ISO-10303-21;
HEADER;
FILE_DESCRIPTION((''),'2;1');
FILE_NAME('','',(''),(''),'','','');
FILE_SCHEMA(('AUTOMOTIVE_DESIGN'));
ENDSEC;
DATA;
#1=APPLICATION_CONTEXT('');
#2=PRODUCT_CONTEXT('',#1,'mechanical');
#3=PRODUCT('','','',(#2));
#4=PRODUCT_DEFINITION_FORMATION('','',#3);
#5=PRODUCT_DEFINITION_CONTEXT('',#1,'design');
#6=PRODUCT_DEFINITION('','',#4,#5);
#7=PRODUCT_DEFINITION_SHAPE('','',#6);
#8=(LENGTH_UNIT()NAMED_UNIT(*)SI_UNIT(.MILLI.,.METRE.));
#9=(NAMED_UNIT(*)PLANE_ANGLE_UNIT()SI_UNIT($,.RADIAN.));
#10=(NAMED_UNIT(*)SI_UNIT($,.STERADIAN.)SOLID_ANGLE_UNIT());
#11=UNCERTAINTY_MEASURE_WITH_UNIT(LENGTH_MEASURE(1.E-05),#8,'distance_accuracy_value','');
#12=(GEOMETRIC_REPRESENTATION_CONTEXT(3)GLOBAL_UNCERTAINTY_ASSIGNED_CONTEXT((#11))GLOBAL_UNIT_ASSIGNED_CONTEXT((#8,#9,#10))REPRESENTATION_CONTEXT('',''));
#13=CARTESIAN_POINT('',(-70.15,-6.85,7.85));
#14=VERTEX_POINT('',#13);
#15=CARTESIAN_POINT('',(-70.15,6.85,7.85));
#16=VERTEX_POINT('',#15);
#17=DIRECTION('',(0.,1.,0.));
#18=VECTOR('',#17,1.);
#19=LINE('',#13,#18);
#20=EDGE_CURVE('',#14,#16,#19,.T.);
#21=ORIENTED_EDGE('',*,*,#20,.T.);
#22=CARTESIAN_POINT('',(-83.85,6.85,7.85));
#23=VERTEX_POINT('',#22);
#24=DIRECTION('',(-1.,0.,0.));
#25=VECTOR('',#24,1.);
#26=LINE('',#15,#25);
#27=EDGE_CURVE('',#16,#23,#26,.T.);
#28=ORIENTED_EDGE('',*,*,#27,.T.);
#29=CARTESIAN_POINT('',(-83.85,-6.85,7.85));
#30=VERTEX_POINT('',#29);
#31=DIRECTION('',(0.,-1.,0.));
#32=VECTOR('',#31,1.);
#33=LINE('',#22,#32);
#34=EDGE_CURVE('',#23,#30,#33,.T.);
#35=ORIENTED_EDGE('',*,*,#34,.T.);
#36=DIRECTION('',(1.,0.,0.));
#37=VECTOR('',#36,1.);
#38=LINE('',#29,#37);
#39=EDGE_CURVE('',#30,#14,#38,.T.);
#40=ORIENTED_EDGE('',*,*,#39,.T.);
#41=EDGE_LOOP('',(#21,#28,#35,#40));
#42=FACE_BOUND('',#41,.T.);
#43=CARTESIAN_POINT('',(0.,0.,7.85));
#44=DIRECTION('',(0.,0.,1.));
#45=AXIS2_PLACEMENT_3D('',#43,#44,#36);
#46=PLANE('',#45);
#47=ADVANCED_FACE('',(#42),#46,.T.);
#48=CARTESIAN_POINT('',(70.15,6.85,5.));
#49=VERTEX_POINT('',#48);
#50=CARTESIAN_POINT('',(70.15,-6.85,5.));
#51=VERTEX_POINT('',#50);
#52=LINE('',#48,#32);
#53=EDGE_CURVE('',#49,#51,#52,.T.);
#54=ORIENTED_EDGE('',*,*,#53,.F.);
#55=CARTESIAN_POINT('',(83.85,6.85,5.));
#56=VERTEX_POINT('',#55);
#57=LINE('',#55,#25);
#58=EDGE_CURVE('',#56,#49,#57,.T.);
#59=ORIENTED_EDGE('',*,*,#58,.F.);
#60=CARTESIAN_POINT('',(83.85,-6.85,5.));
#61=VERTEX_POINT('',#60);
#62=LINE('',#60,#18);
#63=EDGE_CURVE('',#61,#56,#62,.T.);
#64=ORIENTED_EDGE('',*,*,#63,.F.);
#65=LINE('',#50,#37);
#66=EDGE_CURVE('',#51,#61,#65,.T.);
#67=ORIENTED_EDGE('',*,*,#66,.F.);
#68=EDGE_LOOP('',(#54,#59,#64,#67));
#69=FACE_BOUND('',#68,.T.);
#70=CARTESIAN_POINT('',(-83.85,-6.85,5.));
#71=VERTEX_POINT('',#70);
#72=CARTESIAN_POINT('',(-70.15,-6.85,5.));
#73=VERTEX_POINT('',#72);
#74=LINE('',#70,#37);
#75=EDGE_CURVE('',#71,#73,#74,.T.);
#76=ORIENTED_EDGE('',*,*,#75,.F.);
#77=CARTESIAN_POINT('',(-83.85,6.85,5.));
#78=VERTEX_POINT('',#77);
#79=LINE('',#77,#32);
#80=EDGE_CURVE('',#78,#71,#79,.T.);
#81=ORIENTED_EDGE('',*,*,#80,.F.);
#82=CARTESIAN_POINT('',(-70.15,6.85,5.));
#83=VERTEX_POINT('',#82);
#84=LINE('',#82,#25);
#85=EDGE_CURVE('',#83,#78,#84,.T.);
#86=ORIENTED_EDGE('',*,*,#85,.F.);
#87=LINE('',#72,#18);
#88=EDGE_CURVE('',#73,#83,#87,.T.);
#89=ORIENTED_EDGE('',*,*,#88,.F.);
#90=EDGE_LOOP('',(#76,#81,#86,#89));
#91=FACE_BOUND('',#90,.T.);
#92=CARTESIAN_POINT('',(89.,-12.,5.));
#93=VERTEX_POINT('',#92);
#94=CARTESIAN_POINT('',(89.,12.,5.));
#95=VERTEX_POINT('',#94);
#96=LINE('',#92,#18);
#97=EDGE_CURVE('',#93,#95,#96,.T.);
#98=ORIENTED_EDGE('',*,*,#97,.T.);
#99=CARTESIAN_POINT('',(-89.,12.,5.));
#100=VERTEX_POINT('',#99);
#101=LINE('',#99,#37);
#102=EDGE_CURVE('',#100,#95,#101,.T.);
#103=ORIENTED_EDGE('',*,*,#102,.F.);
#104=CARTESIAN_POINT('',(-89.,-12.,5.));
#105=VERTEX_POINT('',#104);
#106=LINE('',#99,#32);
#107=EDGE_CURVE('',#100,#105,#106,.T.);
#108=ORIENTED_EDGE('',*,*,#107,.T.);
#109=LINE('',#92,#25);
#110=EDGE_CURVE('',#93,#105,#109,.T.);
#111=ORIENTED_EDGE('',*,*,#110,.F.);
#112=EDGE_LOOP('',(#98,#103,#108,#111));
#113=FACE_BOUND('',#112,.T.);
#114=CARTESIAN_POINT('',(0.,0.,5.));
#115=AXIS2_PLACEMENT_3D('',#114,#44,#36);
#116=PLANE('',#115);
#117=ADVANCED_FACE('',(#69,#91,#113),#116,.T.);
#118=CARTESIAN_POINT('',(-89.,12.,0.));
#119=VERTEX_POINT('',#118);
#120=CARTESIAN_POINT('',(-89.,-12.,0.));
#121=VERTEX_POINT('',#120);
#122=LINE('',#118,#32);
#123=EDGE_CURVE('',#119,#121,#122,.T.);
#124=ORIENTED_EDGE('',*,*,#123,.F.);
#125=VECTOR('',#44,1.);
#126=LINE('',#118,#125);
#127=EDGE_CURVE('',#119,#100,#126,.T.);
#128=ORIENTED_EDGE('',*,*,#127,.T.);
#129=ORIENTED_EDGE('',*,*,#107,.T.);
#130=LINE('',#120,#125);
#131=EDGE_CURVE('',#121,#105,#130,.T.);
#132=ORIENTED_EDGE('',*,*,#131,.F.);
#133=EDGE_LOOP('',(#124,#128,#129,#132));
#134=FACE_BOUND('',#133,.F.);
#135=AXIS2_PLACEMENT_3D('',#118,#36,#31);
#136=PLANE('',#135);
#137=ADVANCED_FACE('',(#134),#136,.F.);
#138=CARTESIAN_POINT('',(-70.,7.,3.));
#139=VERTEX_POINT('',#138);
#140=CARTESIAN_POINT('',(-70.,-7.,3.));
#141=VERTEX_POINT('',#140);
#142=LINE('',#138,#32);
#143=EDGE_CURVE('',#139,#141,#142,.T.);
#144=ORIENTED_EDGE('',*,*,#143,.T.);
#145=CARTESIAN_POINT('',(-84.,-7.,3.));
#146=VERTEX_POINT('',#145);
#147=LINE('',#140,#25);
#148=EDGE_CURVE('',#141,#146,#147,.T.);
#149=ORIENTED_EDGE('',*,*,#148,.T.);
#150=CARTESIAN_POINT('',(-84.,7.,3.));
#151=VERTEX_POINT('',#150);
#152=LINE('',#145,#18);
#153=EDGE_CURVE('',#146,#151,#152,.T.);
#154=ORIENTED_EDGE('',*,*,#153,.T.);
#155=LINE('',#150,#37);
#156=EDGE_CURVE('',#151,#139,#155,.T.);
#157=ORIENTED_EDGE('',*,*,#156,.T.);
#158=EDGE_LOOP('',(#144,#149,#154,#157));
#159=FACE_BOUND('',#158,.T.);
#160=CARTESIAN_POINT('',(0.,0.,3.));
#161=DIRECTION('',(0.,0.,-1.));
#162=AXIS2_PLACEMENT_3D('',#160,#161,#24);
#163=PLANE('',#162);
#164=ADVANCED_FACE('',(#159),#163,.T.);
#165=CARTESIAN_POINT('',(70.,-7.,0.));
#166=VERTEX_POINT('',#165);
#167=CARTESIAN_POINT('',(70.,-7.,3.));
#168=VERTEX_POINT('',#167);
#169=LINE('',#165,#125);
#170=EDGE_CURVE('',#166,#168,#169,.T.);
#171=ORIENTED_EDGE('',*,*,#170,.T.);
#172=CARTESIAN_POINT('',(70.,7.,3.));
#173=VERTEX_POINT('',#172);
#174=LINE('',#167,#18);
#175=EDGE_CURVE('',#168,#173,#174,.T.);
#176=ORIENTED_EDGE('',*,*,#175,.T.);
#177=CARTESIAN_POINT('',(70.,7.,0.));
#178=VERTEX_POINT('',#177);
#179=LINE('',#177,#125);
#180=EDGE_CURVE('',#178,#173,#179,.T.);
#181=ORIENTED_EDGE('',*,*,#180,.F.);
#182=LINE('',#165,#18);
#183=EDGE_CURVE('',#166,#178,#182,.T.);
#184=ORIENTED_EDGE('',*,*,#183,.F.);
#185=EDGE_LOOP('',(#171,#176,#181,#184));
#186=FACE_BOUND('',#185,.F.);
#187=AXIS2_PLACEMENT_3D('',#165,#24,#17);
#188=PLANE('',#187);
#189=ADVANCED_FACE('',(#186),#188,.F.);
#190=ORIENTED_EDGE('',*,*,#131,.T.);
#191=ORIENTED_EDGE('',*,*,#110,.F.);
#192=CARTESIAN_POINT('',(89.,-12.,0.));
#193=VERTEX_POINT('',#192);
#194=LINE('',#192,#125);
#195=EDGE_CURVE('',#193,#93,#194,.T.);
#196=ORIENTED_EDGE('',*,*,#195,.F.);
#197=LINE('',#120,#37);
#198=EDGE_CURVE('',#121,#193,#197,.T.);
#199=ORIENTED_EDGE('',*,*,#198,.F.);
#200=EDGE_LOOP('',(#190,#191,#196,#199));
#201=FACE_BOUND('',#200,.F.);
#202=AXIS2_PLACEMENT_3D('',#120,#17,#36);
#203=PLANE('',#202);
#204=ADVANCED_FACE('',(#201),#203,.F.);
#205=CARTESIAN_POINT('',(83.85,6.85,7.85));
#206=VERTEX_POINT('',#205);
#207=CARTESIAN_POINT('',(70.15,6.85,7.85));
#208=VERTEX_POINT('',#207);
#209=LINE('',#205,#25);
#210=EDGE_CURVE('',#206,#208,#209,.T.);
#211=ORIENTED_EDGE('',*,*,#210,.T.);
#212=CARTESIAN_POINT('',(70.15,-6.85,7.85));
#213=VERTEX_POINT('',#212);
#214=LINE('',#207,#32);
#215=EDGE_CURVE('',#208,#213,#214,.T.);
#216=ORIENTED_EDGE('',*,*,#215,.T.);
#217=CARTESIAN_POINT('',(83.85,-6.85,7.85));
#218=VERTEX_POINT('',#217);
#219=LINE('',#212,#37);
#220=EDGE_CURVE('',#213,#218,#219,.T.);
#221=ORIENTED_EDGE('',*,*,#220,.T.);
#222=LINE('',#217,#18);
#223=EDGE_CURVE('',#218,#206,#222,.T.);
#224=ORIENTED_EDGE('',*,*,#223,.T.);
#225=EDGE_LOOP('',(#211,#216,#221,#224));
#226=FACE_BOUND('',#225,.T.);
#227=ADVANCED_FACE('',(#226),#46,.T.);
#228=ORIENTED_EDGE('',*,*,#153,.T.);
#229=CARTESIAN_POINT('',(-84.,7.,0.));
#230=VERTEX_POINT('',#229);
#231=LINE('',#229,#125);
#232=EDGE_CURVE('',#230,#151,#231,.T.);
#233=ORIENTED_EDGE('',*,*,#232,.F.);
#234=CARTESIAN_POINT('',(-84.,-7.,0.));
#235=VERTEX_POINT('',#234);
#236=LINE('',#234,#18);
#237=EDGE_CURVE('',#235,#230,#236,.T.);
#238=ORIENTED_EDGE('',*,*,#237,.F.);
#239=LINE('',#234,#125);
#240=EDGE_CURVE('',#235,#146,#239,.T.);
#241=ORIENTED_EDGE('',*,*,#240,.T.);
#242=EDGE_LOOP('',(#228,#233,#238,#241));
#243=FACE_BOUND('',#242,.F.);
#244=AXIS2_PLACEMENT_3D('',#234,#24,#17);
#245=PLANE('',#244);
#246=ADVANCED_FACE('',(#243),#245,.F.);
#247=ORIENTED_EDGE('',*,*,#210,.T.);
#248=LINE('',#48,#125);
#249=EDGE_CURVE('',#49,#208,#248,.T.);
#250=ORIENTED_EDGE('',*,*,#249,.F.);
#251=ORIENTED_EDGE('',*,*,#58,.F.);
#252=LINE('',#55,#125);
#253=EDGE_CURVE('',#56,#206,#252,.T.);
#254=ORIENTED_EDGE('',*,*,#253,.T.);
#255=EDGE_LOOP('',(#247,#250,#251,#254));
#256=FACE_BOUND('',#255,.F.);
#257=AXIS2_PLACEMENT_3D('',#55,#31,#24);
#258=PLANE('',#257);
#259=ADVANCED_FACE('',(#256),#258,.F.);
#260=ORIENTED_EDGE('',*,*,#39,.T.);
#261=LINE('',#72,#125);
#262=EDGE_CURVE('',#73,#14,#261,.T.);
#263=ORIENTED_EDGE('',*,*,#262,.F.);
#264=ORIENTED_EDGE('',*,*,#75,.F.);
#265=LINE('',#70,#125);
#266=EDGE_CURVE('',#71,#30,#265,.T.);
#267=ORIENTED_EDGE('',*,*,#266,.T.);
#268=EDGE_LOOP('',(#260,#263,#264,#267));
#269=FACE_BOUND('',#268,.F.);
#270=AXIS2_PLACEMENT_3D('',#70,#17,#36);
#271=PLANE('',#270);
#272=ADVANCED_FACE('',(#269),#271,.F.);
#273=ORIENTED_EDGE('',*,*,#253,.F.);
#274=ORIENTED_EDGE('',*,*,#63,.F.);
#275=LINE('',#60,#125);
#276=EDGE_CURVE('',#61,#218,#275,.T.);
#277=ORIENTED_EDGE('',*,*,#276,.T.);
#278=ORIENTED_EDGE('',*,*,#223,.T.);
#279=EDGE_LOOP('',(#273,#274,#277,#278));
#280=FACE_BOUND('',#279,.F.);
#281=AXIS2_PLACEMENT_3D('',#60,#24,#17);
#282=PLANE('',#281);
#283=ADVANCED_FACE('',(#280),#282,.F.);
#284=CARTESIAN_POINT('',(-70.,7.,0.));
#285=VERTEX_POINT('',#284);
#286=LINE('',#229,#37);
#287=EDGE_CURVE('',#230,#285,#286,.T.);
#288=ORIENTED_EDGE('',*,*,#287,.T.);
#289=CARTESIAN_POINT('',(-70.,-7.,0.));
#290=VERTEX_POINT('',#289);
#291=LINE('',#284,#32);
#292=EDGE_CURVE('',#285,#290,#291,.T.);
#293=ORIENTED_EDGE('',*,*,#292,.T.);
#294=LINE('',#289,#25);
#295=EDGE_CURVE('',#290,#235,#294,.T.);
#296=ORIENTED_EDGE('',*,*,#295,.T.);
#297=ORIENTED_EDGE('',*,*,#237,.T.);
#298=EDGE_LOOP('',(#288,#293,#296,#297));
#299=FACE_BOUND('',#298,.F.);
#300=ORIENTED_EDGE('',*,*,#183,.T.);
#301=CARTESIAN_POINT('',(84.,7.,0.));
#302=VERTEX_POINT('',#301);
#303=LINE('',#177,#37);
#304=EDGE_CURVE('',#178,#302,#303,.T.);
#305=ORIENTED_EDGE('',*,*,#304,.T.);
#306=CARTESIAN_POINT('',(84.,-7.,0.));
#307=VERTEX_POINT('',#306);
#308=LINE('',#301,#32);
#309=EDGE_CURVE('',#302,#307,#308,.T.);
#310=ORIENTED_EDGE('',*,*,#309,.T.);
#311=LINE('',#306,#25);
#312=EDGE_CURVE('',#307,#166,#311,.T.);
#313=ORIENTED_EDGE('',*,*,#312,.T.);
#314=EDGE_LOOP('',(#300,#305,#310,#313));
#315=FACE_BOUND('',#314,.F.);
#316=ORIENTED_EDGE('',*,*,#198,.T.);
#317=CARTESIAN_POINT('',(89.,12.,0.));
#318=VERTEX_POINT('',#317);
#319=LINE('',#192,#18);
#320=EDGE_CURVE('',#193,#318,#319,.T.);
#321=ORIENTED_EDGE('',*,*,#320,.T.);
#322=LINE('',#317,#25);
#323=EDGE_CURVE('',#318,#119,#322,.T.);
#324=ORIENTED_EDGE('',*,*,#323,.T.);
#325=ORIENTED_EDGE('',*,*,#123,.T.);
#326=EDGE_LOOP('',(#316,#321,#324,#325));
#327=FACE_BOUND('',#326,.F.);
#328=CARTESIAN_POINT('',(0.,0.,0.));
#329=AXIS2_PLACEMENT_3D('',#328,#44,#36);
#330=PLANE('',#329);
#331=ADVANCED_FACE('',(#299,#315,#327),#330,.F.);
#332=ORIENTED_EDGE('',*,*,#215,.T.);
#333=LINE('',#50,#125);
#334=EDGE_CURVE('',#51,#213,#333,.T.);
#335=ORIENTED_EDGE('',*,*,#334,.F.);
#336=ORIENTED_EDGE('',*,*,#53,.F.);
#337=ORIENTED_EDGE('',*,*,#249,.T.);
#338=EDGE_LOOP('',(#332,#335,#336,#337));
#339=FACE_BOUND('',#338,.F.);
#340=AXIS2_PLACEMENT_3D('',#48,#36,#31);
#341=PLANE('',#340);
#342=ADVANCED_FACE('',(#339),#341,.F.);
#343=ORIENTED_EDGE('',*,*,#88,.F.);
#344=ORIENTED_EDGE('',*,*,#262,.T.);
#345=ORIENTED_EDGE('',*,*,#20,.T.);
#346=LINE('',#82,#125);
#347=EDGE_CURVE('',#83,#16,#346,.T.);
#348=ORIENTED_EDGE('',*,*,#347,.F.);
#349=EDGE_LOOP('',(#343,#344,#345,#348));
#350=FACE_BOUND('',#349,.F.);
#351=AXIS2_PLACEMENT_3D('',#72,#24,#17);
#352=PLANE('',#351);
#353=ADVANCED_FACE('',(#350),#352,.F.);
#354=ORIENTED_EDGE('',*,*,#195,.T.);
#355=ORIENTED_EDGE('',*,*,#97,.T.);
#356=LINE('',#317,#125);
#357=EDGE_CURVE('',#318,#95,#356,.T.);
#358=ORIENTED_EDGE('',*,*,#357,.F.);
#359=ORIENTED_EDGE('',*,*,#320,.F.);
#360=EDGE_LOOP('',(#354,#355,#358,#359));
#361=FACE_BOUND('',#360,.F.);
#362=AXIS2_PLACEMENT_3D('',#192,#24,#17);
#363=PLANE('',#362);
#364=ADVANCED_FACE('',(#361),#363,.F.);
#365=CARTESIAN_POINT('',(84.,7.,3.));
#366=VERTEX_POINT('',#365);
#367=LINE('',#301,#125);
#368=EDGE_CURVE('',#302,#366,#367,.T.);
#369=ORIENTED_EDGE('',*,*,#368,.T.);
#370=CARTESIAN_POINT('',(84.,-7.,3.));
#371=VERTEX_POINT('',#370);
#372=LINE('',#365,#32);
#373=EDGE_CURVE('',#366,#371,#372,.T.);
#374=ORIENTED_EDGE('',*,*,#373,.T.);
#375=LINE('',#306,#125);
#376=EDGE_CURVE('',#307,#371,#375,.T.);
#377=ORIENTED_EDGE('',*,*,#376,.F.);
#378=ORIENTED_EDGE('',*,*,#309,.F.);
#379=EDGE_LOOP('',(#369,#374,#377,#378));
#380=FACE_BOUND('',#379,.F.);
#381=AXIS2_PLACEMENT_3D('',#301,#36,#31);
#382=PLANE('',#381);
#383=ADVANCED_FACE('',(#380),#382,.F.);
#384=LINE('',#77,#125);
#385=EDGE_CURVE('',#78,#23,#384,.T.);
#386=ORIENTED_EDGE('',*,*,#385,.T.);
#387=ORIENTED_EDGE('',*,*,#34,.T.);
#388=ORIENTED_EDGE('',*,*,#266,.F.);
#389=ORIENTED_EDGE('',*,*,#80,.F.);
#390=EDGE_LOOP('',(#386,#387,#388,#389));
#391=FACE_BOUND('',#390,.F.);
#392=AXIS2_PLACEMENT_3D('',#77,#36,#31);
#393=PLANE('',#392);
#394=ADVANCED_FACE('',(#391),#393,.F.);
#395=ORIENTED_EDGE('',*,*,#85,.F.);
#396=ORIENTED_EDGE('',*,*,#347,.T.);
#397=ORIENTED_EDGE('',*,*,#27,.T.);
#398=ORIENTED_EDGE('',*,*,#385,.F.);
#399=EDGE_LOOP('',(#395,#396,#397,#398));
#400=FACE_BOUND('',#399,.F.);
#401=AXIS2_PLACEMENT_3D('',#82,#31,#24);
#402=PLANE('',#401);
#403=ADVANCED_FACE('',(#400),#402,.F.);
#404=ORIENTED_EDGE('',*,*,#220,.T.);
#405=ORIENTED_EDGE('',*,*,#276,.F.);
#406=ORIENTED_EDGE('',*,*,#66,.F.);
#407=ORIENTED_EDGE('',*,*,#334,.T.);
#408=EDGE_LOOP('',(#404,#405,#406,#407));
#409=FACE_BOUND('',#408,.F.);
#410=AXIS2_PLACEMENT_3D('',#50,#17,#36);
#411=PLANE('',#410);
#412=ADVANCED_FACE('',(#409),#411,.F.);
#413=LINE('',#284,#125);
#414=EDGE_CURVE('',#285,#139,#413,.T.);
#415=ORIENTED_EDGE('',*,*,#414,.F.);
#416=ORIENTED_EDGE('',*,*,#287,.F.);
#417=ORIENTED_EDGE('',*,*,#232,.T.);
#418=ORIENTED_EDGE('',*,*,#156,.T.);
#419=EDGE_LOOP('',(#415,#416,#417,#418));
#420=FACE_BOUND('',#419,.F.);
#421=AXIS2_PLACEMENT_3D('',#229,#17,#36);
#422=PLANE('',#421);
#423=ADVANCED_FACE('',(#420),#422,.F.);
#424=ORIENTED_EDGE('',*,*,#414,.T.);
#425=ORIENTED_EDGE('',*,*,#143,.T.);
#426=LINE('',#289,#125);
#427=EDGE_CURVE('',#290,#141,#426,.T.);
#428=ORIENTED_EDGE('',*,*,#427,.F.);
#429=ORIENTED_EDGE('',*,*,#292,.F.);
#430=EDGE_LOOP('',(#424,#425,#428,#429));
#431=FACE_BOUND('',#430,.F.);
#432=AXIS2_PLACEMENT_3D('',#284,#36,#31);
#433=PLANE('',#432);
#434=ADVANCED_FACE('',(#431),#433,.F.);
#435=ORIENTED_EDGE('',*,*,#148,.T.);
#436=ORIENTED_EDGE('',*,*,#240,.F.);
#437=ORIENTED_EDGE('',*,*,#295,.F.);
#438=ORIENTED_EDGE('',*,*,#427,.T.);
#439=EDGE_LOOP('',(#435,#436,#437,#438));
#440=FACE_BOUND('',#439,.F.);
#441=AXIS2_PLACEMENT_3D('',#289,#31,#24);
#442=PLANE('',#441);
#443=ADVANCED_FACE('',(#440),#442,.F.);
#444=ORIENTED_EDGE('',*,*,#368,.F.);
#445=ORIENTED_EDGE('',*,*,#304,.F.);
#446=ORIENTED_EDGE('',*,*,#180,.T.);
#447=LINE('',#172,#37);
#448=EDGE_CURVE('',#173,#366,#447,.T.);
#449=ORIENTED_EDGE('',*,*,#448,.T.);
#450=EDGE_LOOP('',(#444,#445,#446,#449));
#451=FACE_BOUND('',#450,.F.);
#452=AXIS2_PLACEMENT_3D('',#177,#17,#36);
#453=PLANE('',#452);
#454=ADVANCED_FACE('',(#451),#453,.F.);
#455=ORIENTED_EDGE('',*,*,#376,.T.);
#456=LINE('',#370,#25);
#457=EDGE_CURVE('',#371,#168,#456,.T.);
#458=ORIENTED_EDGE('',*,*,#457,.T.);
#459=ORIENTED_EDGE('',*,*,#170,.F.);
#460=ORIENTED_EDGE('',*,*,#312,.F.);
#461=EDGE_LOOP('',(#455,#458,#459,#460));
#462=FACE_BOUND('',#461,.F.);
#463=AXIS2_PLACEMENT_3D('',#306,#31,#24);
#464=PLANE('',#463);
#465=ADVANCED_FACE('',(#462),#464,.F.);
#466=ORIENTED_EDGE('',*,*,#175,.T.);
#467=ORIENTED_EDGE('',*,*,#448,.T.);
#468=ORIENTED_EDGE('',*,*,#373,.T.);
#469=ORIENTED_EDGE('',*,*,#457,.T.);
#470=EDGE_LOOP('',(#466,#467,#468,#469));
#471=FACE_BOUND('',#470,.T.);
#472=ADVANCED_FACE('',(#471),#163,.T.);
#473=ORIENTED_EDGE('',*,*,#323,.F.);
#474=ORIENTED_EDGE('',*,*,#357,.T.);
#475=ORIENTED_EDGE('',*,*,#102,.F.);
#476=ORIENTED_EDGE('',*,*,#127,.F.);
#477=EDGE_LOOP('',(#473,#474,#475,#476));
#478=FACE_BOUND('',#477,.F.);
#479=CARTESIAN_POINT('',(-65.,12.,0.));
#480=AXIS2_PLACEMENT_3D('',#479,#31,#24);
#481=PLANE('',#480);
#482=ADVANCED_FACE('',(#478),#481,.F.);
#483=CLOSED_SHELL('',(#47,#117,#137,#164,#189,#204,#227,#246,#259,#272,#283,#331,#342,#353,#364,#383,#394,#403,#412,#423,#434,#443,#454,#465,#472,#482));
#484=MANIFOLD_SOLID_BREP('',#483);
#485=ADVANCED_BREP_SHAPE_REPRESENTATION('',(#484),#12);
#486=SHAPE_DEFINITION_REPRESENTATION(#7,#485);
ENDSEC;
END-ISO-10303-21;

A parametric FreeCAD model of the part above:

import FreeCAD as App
import Part
import Sketcher

V = App.Vector
Q = App.Units.Quantity

doc = App.newDocument("Part")
body = doc.addObject("PartDesign::Body", "Body")

sketch1 = body.newObject("Sketcher::SketchObject", "Sketch")
sketch1.AttachmentSupport = (doc.getObject("XY_Plane"), [""])
sketch1.MapMode = "FlatFace"
sketch1.addGeometry([
    Part.LineSegment(V(-89, 12, 0), V(-89, -12, 0)),
    Part.LineSegment(V(-89, -12, 0), V(89, -12, 0)),
    Part.LineSegment(V(89, -12, 0), V(89, 12, 0)),
    Part.LineSegment(V(89, 12, 0), V(-89, 12, 0)),
], False)
sketch1.addConstraint([
    Sketcher.Constraint("Coincident", 0, 2, 1, 1),
    Sketcher.Constraint("Coincident", 1, 2, 2, 1),
    Sketcher.Constraint("Coincident", 2, 2, 3, 1),
    Sketcher.Constraint("Coincident", 3, 2, 0, 1),
    Sketcher.Constraint("Vertical", 0),
    Sketcher.Constraint("Horizontal", 1),
    Sketcher.Constraint("Vertical", 2),
    Sketcher.Constraint("Horizontal", 3),
    Sketcher.Constraint("Symmetric", 0, 2, 2, 2, -1, 1),
    Sketcher.Constraint("DistanceX", 1, 1, 1, 2, Q("178 mm")),
    Sketcher.Constraint("DistanceY", 0, 2, 0, 1, Q("24 mm")),
])
pad1 = body.newObject("PartDesign::Pad", "Pad")
pad1.Profile = sketch1
pad1.Length = 5

sketch2 = body.newObject("Sketcher::SketchObject", "Sketch001")
sketch2.AttachmentSupport = (doc.getObject("XY_Plane"), [""])
sketch2.MapMode = "FlatFace"
sketch2.AttachmentOffset = App.Placement(V(0, 0, 5), App.Rotation())
sketch2.addGeometry([
    Part.LineSegment(V(70, 7, 0), V(70, -7, 0)),
    Part.LineSegment(V(70, -7, 0), V(84, -7, 0)),
    Part.LineSegment(V(84, -7, 0), V(84, 7, 0)),
    Part.LineSegment(V(84, 7, 0), V(70, 7, 0)),
    Part.LineSegment(V(-84, 7, 0), V(-84, -7, 0)),
    Part.LineSegment(V(-84, -7, 0), V(-70, -7, 0)),
    Part.LineSegment(V(-70, -7, 0), V(-70, 7, 0)),
    Part.LineSegment(V(-70, 7, 0), V(-84, 7, 0)),
], False)
sketch2.addConstraint([
    Sketcher.Constraint("Coincident", 0, 2, 1, 1),
    Sketcher.Constraint("Coincident", 1, 2, 2, 1),
    Sketcher.Constraint("Coincident", 2, 2, 3, 1),
    Sketcher.Constraint("Coincident", 3, 2, 0, 1),
    Sketcher.Constraint("Coincident", 4, 2, 5, 1),
    Sketcher.Constraint("Coincident", 5, 2, 6, 1),
    Sketcher.Constraint("Coincident", 6, 2, 7, 1),
    Sketcher.Constraint("Coincident", 7, 2, 4, 1),
    Sketcher.Constraint("Vertical", 0),
    Sketcher.Constraint("Horizontal", 1),
    Sketcher.Constraint("Vertical", 2),
    Sketcher.Constraint("Horizontal", 3),
    Sketcher.Constraint("Vertical", 4),
    Sketcher.Constraint("Horizontal", 5),
    Sketcher.Constraint("Vertical", 6),
    Sketcher.Constraint("Horizontal", 7),
    Sketcher.Constraint("Symmetric", 2, 2, 4, 2, -1, 1),
    Sketcher.Constraint("Symmetric", 0, 2, 6, 2, -1, 1),
    Sketcher.Constraint("Horizontal", 1, 2, 4, 2),
    Sketcher.Constraint("Equal", 7, 0),
    Sketcher.Constraint("DistanceX", 1, 1, 1, 2, Q("13.7 mm")),
    Sketcher.Constraint("DistanceX", 4, 2, 0, 2, Q("154 mm")),
])
pad2 = body.newObject("PartDesign::Pad", "Pad001")
pad2.Profile = sketch2
pad2.Length = 2.85

sketch3 = body.newObject("Sketcher::SketchObject", "Sketch002")
sketch3.AttachmentSupport = (doc.getObject("XY_Plane"), [""])
sketch3.MapMode = "FlatFace"
sketch3.addGeometry([
    Part.LineSegment(V(-70, 7, 0), V(-70, -7, 0)),
    Part.LineSegment(V(-70, -7, 0), V(-84, -7, 0)),
    Part.LineSegment(V(-84, -7, 0), V(-84, 7, 0)),
    Part.LineSegment(V(-84, 7, 0), V(-70, 7, 0)),
    Part.LineSegment(V(84, 7, 0), V(84, -7, 0)),
    Part.LineSegment(V(84, -7, 0), V(70, -7, 0)),
    Part.LineSegment(V(70, -7, 0), V(70, 7, 0)),
    Part.LineSegment(V(70, 7, 0), V(84, 7, 0)),
], False)
sketch3.addConstraint([
    Sketcher.Constraint("Coincident", 0, 2, 1, 1),
    Sketcher.Constraint("Coincident", 1, 2, 2, 1),
    Sketcher.Constraint("Coincident", 2, 2, 3, 1),
    Sketcher.Constraint("Coincident", 3, 2, 0, 1),
    Sketcher.Constraint("Coincident", 4, 2, 5, 1),
    Sketcher.Constraint("Coincident", 5, 2, 6, 1),
    Sketcher.Constraint("Coincident", 6, 2, 7, 1),
    Sketcher.Constraint("Coincident", 7, 2, 4, 1),
    Sketcher.Constraint("Vertical", 0),
    Sketcher.Constraint("Horizontal", 1),
    Sketcher.Constraint("Vertical", 2),
    Sketcher.Constraint("Horizontal", 3),
    Sketcher.Constraint("Vertical", 4),
    Sketcher.Constraint("Horizontal", 5),
    Sketcher.Constraint("Vertical", 6),
    Sketcher.Constraint("Horizontal", 7),
    Sketcher.Constraint("Symmetric", 2, 2, 4, 2, -1, 1),
    Sketcher.Constraint("Symmetric", 0, 2, 6, 2, -1, 1),
    Sketcher.Constraint("Horizontal", 1, 2, 4, 2),
    Sketcher.Constraint("Equal", 7, 0),
    Sketcher.Constraint("DistanceX", 1, 2, 1, 1, Q("14 mm")),
    Sketcher.Constraint("DistanceX", 0, 2, -1, 1, Q("70 mm")),
])
pocket1 = body.newObject("PartDesign::Pocket", "Pocket")
pocket1.Profile = sketch3
pocket1.Length = 3
pocket1.Reversed = True

doc.recompute()
